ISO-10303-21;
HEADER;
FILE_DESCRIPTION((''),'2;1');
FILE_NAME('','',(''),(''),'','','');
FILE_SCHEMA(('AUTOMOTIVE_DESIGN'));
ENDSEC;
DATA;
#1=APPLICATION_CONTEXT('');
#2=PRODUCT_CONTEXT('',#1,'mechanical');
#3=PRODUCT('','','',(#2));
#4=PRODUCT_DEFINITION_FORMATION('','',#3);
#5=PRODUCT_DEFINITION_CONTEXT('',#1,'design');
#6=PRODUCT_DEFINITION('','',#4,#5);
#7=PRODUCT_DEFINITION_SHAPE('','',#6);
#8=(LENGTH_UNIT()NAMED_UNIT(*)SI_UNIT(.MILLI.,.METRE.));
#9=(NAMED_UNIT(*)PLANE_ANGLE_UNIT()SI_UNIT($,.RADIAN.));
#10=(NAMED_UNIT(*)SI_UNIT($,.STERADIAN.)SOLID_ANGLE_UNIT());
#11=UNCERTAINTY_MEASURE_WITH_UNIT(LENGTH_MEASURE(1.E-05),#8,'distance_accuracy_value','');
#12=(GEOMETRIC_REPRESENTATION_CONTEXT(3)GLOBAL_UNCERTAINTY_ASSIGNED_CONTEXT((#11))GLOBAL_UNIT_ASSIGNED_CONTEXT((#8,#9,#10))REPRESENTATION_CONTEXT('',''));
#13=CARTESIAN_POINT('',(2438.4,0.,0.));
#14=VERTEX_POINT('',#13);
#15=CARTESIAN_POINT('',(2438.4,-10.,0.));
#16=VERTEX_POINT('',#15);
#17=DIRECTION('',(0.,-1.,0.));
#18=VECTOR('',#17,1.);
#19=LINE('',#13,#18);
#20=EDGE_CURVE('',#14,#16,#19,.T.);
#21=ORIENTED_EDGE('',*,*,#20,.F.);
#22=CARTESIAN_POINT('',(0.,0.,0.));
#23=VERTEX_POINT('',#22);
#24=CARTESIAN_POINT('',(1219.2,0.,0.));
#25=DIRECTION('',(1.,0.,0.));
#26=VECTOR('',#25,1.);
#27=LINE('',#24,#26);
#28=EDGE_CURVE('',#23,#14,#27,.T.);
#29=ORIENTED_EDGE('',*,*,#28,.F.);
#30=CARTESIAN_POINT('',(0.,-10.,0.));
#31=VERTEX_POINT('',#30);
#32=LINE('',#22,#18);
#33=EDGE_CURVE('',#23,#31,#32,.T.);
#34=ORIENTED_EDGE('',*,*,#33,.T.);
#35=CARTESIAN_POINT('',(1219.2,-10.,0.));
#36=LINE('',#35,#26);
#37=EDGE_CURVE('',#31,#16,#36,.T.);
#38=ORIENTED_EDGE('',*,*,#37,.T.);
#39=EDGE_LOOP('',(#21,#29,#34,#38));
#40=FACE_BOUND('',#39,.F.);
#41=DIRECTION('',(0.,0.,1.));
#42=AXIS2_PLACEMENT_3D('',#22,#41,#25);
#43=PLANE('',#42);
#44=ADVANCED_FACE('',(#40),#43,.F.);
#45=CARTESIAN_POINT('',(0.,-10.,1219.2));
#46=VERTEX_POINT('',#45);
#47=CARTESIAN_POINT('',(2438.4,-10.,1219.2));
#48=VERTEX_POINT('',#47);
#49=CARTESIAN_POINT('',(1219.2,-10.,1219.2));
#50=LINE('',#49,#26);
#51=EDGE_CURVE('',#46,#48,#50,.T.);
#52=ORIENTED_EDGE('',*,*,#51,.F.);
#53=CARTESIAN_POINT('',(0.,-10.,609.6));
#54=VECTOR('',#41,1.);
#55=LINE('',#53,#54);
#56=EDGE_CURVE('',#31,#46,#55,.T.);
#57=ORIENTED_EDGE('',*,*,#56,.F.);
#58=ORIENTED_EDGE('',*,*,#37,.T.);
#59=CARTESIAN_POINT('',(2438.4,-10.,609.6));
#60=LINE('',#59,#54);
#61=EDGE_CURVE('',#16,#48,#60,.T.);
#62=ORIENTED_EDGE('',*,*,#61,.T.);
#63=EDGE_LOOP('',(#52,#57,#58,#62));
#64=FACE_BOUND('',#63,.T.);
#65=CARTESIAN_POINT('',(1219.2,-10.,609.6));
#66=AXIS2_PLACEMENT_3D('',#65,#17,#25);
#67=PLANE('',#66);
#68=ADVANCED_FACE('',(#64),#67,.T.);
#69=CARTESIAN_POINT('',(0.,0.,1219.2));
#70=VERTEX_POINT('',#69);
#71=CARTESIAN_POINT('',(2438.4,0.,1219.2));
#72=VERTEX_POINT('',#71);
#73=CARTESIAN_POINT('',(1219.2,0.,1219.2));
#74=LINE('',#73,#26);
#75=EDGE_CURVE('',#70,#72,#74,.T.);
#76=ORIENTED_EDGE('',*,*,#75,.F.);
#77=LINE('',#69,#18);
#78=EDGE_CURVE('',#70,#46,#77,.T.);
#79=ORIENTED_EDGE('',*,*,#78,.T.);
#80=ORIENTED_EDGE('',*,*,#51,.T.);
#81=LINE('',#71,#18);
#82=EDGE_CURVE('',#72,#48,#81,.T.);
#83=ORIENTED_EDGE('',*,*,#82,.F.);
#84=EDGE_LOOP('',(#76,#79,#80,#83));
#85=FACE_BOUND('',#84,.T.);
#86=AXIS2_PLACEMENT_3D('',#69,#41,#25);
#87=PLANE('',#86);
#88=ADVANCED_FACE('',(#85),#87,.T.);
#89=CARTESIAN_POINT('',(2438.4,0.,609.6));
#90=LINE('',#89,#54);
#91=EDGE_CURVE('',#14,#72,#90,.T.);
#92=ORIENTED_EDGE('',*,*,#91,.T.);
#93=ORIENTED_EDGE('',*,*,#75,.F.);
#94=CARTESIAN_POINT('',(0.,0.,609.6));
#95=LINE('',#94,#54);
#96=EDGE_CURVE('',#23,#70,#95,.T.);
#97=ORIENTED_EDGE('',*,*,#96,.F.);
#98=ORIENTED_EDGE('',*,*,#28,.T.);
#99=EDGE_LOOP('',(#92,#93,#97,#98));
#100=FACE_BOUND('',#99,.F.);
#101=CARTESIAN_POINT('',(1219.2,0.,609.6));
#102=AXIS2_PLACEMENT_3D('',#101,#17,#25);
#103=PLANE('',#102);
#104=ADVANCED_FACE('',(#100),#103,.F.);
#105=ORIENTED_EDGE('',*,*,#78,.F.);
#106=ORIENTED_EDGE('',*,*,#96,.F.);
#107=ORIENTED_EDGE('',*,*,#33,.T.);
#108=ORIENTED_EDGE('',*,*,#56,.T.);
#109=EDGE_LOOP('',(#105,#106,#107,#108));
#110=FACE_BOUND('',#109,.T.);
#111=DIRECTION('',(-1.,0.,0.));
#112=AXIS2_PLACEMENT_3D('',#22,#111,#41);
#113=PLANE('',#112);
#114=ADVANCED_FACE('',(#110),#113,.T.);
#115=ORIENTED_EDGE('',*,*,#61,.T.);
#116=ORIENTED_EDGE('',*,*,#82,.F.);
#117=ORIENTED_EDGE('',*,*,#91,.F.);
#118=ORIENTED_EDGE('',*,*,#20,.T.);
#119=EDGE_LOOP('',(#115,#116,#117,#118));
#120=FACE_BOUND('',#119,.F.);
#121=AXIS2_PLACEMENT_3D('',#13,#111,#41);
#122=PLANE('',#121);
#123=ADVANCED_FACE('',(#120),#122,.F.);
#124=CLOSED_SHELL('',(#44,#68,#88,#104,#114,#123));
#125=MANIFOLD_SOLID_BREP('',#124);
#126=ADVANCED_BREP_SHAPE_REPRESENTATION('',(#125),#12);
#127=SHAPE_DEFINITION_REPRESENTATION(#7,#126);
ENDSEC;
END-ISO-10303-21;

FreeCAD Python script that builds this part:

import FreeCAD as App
import Part
import Sketcher

V = App.Vector
Q = App.Units.Quantity

doc = App.newDocument("Part")
params = doc.addObject("Spreadsheet::Sheet", "Params")
for row, (alias, value) in enumerate([
    ("sketch1_width", "96 in"),
    ("sketch1_height", "48 in"),
    ("pad1_length", "10 mm"),
], start=1):
    params.set(f"A{row}", alias)
    params.set(f"B{row}", "=" + value)
    params.setAlias(f"B{row}", alias)

body = doc.addObject("PartDesign::Body", "Body")

sketch1 = body.newObject("Sketcher::SketchObject", "Sketch")
sketch1.AttachmentSupport = (doc.getObject("XZ_Plane"), [""])
sketch1.MapMode = "FlatFace"
sketch1.addGeometry(Part.LineSegment(V(0, 1219.2, 0), V(0, 0, 0)), False)
sketch1.addGeometry(Part.LineSegment(V(0, 0, 0), V(2438.4, 0, 0)), False)
sketch1.addGeometry(Part.LineSegment(V(2438.4, 0, 0), V(2438.4, 1219.2, 0)), False)
sketch1.addGeometry(Part.LineSegment(V(2438.4, 1219.2, 0), V(0, 1219.2, 0)), False)
sketch1.addConstraint(Sketcher.Constraint("Coincident", 0, 2, 1, 1))
sketch1.addConstraint(Sketcher.Constraint("Coincident", 1, 2, 2, 1))
sketch1.addConstraint(Sketcher.Constraint("Coincident", 2, 2, 3, 1))
sketch1.addConstraint(Sketcher.Constraint("Coincident", 3, 2, 0, 1))
sketch1.addConstraint(Sketcher.Constraint("Vertical", 0))
sketch1.addConstraint(Sketcher.Constraint("Horizontal", 1))
sketch1.addConstraint(Sketcher.Constraint("Vertical", 2))
sketch1.addConstraint(Sketcher.Constraint("Horizontal", 3))
sketch1.addConstraint(Sketcher.Constraint("Coincident", 0, 2, -1, 1))
sketch1.addConstraint(Sketcher.Constraint("DistanceX", 1, 1, 1, 2, Q("96 in")))
sketch1.addConstraint(Sketcher.Constraint("DistanceY", 0, 2, 0, 1, Q("48 in")))
sketch1.setExpression("Constraints[9]", "Params.sketch1_width")
sketch1.setExpression("Constraints[10]", "Params.sketch1_height")
pad1 = body.newObject("PartDesign::Pad", "Pad")
pad1.Profile = sketch1
pad1.setExpression("Length", "Params.pad1_length")

doc.recompute()
